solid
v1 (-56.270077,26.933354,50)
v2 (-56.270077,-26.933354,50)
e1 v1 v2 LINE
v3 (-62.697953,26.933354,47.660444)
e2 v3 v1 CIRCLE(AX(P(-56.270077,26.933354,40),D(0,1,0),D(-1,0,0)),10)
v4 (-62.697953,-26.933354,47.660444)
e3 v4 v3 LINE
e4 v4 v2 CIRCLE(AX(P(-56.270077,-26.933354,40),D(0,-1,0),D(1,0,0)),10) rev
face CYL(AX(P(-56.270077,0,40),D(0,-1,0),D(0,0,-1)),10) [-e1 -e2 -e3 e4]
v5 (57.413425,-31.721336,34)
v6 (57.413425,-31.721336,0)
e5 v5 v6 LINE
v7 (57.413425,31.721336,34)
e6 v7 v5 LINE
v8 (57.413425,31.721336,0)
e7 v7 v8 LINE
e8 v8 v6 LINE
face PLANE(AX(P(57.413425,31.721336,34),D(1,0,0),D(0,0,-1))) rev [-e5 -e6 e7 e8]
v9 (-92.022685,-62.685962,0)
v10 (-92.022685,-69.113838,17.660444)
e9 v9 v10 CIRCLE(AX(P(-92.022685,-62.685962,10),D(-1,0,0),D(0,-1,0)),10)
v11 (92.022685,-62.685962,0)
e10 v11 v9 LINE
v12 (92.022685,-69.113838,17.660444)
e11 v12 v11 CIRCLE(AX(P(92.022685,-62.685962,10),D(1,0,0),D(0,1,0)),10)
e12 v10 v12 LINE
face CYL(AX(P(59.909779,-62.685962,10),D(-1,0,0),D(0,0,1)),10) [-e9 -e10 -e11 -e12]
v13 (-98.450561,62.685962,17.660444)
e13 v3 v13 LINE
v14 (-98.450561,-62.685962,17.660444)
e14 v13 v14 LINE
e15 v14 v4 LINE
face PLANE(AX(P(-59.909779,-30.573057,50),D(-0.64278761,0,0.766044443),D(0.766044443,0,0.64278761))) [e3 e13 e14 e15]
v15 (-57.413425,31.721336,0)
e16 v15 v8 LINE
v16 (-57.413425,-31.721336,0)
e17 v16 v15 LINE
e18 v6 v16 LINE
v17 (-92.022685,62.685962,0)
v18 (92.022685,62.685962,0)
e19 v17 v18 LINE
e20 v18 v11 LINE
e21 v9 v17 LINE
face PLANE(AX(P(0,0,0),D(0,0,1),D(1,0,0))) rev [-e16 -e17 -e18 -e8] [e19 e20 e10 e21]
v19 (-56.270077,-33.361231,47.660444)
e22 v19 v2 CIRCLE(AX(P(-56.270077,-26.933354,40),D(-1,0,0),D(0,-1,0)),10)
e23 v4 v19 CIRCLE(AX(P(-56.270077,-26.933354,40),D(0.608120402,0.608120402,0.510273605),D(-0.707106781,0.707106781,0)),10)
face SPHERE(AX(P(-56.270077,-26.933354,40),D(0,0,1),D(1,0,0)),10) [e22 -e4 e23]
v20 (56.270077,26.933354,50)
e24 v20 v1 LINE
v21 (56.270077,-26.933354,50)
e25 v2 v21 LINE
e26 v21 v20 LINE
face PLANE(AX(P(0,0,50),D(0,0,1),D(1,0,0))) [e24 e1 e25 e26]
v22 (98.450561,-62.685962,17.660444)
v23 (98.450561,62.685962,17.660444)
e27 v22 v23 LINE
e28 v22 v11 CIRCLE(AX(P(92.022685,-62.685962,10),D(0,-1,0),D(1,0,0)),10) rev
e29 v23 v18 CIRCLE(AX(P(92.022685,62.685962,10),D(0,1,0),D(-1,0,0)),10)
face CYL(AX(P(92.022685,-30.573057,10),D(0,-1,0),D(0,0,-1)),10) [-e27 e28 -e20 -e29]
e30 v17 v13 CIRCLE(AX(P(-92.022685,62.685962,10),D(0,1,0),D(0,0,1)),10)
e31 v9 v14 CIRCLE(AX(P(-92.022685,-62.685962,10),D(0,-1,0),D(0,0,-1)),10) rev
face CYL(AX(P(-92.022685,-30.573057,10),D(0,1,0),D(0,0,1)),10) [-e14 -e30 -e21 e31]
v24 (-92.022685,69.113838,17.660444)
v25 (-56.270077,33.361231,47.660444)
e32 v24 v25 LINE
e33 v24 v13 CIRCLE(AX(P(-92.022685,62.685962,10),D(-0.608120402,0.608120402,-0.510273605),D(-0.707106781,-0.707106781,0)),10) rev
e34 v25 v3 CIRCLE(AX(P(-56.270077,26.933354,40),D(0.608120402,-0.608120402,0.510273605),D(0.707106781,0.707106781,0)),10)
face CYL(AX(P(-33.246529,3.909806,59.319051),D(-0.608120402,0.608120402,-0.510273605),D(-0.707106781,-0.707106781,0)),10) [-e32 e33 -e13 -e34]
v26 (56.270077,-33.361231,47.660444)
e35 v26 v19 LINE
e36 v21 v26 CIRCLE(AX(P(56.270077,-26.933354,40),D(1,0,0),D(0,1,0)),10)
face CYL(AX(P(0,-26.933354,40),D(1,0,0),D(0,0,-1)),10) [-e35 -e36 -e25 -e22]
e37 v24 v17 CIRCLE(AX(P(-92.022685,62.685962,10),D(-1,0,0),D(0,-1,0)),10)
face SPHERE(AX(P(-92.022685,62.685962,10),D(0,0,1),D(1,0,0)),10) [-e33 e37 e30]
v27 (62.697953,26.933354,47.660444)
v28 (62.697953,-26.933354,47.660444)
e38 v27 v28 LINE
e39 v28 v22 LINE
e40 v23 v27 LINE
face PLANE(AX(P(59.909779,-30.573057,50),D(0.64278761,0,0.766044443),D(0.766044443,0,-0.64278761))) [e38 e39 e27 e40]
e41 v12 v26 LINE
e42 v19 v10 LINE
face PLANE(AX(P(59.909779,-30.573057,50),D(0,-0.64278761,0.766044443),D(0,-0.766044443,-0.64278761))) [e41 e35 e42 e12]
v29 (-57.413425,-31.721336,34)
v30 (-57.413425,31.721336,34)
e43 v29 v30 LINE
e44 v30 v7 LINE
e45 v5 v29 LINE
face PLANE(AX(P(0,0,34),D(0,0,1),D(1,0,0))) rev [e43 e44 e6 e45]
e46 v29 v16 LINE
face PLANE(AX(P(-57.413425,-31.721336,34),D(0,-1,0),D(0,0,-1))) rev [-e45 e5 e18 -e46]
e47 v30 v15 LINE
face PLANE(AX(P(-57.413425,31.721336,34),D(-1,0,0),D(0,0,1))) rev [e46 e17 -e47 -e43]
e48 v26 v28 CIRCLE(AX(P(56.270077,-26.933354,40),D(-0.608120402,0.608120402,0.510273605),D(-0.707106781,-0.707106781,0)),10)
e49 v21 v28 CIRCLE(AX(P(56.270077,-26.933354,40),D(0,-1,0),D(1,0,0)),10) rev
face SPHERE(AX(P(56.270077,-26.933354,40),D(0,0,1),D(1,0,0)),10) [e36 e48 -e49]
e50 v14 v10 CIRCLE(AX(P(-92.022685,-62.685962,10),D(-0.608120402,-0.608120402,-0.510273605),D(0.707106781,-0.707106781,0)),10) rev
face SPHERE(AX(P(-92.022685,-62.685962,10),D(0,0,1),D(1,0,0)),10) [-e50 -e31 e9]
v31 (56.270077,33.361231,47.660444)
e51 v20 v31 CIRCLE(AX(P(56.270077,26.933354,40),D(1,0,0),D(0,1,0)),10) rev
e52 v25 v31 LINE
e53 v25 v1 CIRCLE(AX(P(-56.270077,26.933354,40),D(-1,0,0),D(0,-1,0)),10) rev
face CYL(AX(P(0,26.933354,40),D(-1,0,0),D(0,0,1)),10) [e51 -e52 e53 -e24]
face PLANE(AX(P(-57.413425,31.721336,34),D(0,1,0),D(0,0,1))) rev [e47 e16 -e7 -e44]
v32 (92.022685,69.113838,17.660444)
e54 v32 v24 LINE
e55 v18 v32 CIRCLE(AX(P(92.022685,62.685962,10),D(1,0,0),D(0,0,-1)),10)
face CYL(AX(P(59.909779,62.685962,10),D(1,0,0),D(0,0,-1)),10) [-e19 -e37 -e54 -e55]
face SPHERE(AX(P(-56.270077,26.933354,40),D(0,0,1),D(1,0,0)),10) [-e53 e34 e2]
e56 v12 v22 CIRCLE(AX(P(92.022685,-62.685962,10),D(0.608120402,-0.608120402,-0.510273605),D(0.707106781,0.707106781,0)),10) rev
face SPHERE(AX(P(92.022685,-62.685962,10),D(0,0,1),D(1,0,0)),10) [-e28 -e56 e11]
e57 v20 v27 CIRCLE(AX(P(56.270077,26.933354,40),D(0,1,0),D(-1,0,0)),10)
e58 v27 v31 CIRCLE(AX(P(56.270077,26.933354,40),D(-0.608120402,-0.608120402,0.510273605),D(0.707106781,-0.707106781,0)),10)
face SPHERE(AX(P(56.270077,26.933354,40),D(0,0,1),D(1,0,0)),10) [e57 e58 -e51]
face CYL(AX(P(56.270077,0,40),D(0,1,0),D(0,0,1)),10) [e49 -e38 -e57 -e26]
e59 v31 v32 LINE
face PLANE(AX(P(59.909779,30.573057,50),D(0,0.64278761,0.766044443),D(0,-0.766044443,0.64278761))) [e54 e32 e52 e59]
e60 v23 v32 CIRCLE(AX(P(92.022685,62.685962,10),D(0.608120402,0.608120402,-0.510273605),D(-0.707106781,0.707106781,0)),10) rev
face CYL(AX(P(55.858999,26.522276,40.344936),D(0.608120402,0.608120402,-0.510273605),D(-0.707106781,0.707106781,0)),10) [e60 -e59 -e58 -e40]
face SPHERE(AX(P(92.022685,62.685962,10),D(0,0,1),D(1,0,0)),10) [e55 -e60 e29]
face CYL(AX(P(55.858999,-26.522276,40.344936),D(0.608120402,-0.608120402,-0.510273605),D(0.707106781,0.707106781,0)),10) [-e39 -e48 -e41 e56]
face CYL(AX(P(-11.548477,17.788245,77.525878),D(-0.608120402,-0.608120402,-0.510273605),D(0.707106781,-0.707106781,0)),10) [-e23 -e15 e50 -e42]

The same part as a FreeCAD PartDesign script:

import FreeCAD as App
import Part
import Sketcher

V = App.Vector


def faces_at(feature, points):
    """Names of the faces that lie closest to the given points."""
    faces = feature.Shape.Faces
    near = lambda p: min(range(len(faces)), key=lambda i: faces[i].distToShape(Part.Vertex(*p))[0])
    return sorted({f"Face{near(p) + 1}" for p in points})

doc = App.newDocument("Part")
body = doc.addObject("PartDesign::Body", "Body")

# Sketch on XY plane
sketch1 = doc.addObject("Sketcher::SketchObject", "Sketch")
body.addObject(sketch1)
sketch1.AttachmentSupport = (doc.XY_Plane, [""])
sketch1.MapMode = "FlatFace"
sketch1.addGeometry([
    Part.LineSegment(V(-60, 31, 0), V(-60, -31, 0)),
    Part.LineSegment(V(-60, -31, 0), V(60, -31, 0)),
    Part.LineSegment(V(60, -31, 0), V(60, 31, 0)),
    Part.LineSegment(V(60, 31, 0), V(-60, 31, 0)),
], False)
sketch1.addConstraint([
    Sketcher.Constraint("Coincident", 0, 2, 1, 1),
    Sketcher.Constraint("Coincident", 1, 2, 2, 1),
    Sketcher.Constraint("Coincident", 2, 2, 3, 1),
    Sketcher.Constraint("Coincident", 3, 2, 0, 1),
    Sketcher.Constraint("Vertical", 0),
    Sketcher.Constraint("Horizontal", 1),
    Sketcher.Constraint("Vertical", 2),
    Sketcher.Constraint("Horizontal", 3),
    Sketcher.Constraint("Symmetric", 0, 2, 2, 2, -1, 1),
    Sketcher.Constraint("DistanceX", 1, 1, 1, 2, 119.819558),
    Sketcher.Constraint("DistanceY", 0, 2, 0, 1, 61.146114),
])
pad1 = doc.addObject("PartDesign::Pad", "Pad")
body.addObject(pad1)
pad1.Profile = sketch1
pad1.Length = 50
doc.recompute()

datumplane = doc.addObject("PartDesign::Plane", "DatumPlane")
body.addObject(datumplane)
datumplane.AttachmentSupport = (doc.XY_Plane, [""])
datumplane.MapMode = "FlatFace"
datumplane.AttachmentOffset = App.Placement(V(0, 0, 50), App.Rotation())
draft = doc.addObject("PartDesign::Draft", "Draft")
body.addObject(draft)
draft.Base = (pad1, faces_at(pad1, [
    (-59.91, 0, 25),
    (0, -30.573, 25),
    (59.91, 0, 25),
    (0, 30.573, 25),
]))
draft.NeutralPlane = (datumplane, [""])
draft.Angle = 50
draft.Reversed = False
doc.recompute()

fillet = doc.addObject("PartDesign::Fillet", "Fillet")
body.addObject(fillet)
fillet.Base = (draft, ["Edge1"])
fillet.UseAllEdges = True
fillet.Radius = 10

# Sketch on XY plane
sketch2 = doc.addObject("Sketcher::SketchObject", "Sketch001")
body.addObject(sketch2)
sketch2.AttachmentSupport = (doc.XY_Plane, [""])
sketch2.MapMode = "FlatFace"
sketch2.addGeometry([
    Part.LineSegment(V(57, 32, 0), V(57, -32, 0)),
    Part.LineSegment(V(57, -32, 0), V(-57, -32, 0)),
    Part.LineSegment(V(-57, -32, 0), V(-57, 32, 0)),
    Part.LineSegment(V(-57, 32, 0), V(57, 32, 0)),
], False)
sketch2.addConstraint([
    Sketcher.Constraint("Coincident", 0, 2, 1, 1),
    Sketcher.Constraint("Coincident", 1, 2, 2, 1),
    Sketcher.Constraint("Coincident", 2, 2, 3, 1),
    Sketcher.Constraint("Coincident", 3, 2, 0, 1),
    Sketcher.Constraint("Vertical", 0),
    Sketcher.Constraint("Horizontal", 1),
    Sketcher.Constraint("Vertical", 2),
    Sketcher.Constraint("Horizontal", 3),
    Sketcher.Constraint("Symmetric", 0, 2, 2, 2, -1, 1),
    Sketcher.Constraint("DistanceX", 1, 2, 1, 1, 114.82685),
    Sketcher.Constraint("DistanceY", 0, 2, 0, 1, 63.442672),
])
pocket1 = doc.addObject("PartDesign::Pocket", "Pocket")
body.addObject(pocket1)
pocket1.Profile = sketch2
pocket1.Length = 34
pocket1.Reversed = True

doc.recompute()
